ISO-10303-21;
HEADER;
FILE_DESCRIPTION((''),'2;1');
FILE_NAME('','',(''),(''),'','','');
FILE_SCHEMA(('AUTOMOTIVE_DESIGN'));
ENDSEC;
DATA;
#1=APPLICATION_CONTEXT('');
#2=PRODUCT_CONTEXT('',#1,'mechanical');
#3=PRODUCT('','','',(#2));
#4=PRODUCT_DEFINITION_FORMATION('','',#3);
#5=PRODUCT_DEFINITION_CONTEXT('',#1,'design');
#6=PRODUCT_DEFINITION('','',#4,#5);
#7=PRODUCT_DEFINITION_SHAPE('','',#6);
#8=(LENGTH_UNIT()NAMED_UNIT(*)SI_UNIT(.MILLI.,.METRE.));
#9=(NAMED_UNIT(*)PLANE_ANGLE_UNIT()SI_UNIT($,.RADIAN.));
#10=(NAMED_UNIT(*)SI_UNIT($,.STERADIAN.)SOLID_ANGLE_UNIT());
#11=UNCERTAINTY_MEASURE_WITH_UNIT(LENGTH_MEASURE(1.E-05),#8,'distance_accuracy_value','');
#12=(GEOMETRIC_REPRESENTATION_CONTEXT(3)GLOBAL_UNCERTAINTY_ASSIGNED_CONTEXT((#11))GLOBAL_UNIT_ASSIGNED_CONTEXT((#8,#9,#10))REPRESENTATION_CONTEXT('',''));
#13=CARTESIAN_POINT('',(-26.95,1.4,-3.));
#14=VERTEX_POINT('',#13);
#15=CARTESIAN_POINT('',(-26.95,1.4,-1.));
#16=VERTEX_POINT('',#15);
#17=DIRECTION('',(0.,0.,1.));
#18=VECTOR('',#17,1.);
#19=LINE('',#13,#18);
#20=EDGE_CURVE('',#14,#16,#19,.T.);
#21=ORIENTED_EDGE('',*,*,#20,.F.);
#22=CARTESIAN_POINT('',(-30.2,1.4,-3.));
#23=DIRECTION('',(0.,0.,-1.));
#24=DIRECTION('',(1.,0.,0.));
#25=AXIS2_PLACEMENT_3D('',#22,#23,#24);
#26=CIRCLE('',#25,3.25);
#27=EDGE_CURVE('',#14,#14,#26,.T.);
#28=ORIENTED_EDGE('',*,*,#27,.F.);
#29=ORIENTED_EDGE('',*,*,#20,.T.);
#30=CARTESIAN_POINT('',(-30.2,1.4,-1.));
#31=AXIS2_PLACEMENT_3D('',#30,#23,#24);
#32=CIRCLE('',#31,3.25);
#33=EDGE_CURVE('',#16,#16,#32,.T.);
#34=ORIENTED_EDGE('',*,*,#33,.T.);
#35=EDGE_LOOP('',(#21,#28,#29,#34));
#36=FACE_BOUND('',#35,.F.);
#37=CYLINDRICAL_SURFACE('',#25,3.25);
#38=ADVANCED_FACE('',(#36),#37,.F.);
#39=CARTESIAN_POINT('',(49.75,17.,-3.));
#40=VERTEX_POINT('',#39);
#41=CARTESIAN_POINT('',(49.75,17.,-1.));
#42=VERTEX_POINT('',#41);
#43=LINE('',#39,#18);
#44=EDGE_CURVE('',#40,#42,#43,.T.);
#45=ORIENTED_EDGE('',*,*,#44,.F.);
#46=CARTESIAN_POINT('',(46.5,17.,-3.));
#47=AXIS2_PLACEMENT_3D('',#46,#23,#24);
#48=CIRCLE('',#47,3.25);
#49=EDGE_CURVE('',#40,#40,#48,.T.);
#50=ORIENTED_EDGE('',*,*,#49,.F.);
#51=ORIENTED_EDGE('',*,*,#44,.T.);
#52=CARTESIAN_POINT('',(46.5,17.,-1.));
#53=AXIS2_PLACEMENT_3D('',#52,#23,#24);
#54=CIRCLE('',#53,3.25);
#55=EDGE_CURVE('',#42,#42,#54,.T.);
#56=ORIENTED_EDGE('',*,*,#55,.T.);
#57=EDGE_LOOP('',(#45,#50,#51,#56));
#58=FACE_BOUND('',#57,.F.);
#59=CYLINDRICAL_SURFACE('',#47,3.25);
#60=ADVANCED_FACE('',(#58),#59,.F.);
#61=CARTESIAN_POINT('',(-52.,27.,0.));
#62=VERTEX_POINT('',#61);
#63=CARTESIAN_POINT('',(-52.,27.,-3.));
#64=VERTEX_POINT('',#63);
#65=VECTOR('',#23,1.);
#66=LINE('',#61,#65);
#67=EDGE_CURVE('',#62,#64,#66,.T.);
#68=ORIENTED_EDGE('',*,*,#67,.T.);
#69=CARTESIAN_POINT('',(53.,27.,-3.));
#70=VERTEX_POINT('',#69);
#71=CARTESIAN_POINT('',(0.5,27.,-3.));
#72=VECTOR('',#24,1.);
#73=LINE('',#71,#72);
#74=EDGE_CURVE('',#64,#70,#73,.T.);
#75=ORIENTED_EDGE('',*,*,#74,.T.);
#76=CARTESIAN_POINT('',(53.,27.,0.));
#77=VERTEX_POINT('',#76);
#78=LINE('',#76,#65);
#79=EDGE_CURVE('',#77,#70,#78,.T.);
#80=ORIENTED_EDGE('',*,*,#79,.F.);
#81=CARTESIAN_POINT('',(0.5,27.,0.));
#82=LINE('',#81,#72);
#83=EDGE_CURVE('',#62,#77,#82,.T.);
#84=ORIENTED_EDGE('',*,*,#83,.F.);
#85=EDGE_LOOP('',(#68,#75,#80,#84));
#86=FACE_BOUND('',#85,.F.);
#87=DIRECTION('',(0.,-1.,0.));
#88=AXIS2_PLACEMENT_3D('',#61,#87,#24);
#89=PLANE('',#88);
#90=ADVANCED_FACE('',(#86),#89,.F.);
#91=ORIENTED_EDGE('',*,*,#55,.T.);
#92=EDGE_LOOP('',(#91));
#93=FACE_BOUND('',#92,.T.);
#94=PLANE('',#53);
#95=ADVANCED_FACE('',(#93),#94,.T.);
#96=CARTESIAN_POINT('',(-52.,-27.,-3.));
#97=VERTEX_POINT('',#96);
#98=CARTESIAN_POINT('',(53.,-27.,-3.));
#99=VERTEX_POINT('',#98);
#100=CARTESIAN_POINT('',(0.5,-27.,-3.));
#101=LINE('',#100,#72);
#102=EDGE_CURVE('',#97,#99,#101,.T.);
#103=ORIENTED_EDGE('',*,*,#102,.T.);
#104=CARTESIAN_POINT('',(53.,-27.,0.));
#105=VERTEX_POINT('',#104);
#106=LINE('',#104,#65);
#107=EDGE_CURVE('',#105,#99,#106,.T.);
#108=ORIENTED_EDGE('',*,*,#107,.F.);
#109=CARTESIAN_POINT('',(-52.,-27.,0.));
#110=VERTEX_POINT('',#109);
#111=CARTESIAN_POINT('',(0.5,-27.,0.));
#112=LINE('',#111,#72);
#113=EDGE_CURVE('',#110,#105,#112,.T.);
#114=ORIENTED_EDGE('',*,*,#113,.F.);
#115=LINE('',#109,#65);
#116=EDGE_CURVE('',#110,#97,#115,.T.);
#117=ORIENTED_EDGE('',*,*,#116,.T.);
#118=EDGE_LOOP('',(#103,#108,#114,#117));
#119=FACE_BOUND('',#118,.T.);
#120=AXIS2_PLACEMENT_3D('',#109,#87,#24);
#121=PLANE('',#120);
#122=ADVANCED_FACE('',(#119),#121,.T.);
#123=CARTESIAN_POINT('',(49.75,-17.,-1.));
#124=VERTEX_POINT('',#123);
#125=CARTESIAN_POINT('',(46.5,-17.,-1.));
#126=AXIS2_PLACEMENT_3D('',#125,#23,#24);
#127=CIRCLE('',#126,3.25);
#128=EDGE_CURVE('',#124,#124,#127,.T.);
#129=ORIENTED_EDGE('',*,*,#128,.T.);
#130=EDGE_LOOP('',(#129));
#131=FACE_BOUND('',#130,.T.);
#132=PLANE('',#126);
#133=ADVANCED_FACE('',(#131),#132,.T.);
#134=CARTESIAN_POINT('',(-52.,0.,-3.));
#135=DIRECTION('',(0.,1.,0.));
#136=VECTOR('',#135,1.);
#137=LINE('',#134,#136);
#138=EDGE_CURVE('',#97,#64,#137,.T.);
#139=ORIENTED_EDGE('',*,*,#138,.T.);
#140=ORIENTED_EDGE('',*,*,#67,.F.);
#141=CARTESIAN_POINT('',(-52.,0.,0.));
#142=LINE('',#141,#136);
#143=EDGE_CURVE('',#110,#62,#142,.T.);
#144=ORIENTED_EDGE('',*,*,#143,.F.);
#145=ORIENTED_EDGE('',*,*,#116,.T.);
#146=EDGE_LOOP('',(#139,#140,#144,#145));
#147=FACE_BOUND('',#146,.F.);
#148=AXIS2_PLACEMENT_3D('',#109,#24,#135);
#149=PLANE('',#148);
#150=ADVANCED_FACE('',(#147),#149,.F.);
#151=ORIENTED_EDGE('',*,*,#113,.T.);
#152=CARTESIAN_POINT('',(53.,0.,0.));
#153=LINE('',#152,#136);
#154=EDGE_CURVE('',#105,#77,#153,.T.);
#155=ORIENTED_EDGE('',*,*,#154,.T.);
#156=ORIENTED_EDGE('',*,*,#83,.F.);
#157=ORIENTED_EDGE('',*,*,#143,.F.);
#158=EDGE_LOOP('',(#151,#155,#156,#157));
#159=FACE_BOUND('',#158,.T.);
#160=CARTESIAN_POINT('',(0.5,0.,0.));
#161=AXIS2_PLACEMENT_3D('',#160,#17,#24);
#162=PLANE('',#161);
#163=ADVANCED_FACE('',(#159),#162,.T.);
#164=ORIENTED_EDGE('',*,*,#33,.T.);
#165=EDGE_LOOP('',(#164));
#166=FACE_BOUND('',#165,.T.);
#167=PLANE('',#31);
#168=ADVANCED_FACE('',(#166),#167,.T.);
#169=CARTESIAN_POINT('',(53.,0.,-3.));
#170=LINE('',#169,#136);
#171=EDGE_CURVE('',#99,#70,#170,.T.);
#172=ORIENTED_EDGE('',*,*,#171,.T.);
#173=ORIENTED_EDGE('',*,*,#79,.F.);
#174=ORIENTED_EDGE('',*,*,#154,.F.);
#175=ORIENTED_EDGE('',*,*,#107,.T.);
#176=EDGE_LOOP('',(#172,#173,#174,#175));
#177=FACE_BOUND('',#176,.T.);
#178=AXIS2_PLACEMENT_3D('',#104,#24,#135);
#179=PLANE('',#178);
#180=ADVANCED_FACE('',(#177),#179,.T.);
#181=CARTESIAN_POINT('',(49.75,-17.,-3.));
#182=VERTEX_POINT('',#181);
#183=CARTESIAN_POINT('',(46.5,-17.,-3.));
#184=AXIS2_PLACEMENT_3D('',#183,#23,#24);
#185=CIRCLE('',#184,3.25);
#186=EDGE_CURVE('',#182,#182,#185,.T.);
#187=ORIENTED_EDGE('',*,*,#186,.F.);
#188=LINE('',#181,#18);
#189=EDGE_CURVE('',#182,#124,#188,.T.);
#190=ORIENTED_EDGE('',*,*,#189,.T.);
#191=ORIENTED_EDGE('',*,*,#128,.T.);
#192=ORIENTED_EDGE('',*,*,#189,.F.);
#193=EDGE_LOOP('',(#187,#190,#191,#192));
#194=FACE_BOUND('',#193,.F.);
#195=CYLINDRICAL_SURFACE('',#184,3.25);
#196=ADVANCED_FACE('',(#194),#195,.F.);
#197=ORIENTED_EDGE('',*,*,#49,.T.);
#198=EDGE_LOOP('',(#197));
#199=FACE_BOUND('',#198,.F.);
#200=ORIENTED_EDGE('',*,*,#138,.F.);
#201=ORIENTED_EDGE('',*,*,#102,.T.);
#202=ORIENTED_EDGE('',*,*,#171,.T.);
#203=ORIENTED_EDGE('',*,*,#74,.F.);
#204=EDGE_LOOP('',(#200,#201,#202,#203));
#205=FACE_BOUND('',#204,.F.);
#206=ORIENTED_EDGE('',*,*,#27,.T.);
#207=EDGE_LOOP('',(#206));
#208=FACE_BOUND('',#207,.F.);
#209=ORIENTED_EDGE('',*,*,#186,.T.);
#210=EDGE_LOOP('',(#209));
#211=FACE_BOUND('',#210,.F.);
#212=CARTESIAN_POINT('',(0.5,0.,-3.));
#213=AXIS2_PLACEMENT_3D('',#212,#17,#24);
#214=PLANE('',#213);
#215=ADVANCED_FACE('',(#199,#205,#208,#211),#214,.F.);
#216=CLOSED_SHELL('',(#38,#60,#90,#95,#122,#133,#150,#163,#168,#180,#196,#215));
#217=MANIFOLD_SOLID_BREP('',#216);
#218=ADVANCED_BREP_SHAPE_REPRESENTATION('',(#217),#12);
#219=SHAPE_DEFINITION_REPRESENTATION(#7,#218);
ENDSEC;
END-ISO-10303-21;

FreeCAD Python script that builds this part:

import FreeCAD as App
import Part
import Sketcher

V = App.Vector

doc = App.newDocument("Part")
params = doc.addObject("Spreadsheet::Sheet", "Params")
for row, (alias, value) in enumerate([
    ("sketch1_width", "105 mm"),
    ("sketch1_height", "54 mm"),
    ("pad1_length", "3 mm"),
    ("sketch2_diameter", "6.5 mm"),
    ("pocket1_length", "2 mm"),
    ("sketch3_diameter", "6.5 mm"),
    ("pocket2_length", "2 mm"),
    ("sketch4_diameter", "6.5 mm"),
    ("pocket3_length", "2 mm"),
], start=1):
    params.set(f"A{row}", alias)
    params.set(f"B{row}", "=" + value)
    params.setAlias(f"B{row}", alias)

body = doc.addObject("PartDesign::Body", "Body")

# Sketch on XY plane
sketch1 = body.newObject("Sketcher::SketchObject", "Sketch")
sketch1.AttachmentSupport = (doc.getObject("XY_Plane"), [""])
sketch1.MapMode = "FlatFace"
sketch1.addGeometry([
    Part.LineSegment(V(-52, 27, 0), V(-52, -27, 0)),
    Part.LineSegment(V(-52, -27, 0), V(53, -27, 0)),
    Part.LineSegment(V(53, -27, 0), V(53, 27, 0)),
    Part.LineSegment(V(53, 27, 0), V(-52, 27, 0)),
], False)
sketch1.addConstraint([
    Sketcher.Constraint("Coincident", 0, 2, 1, 1),
    Sketcher.Constraint("Coincident", 1, 2, 2, 1),
    Sketcher.Constraint("Coincident", 2, 2, 3, 1),
    Sketcher.Constraint("Coincident", 3, 2, 0, 1),
    Sketcher.Constraint("Vertical", 0),
    Sketcher.Constraint("Horizontal", 1),
    Sketcher.Constraint("Vertical", 2),
    Sketcher.Constraint("Horizontal", 3),
    Sketcher.Constraint("DistanceX", 1, 1, 1, 2, 105.0),
    Sketcher.Constraint("DistanceY", 0, 2, 0, 1, 54.0),
    Sketcher.Constraint("DistanceX", 0, 2, -1, 1, 52.0),
    Sketcher.Constraint("DistanceY", 0, 2, -1, 1, 27.0),
])
sketch1.setExpression("Constraints[8]", "Params.sketch1_width")
sketch1.setExpression("Constraints[9]", "Params.sketch1_height")
pad1 = body.newObject("PartDesign::Pad", "Pad")
pad1.Profile = sketch1
pad1.setExpression("Length", "Params.pad1_length")
pad1.Reversed = True

# Sketch on XY plane
sketch2 = body.newObject("Sketcher::SketchObject", "Sketch001")
sketch2.AttachmentSupport = (doc.getObject("XY_Plane"), [""])
sketch2.MapMode = "FlatFace"
sketch2.AttachmentOffset = App.Placement(V(0, 0, -3), App.Rotation())
sketch2.addGeometry(Part.Circle(V(46.5, -17, 0), V(0, 0, 1), 3.2), False)
sketch2.addConstraint([
    Sketcher.Constraint("Diameter", 0, 6.5),
    Sketcher.Constraint("DistanceY", 0, 3, -1, 1, 17.0),
    Sketcher.Constraint("DistanceX", -1, 1, 0, 3, 46.5),
])
sketch2.setExpression("Constraints[0]", "Params.sketch2_diameter")
pocket1 = body.newObject("PartDesign::Pocket", "Pocket")
pocket1.Profile = sketch2
pocket1.setExpression("Length", "Params.pocket1_length")
pocket1.Reversed = True

# Sketch on XY plane
sketch3 = body.newObject("Sketcher::SketchObject", "Sketch002")
sketch3.AttachmentSupport = (doc.getObject("XY_Plane"), [""])
sketch3.MapMode = "FlatFace"
sketch3.AttachmentOffset = App.Placement(V(0, 0, -3), App.Rotation())
sketch3.addGeometry(Part.Circle(V(46.5, 17, 0), V(0, 0, 1), 3.2), False)
sketch3.addConstraint([
    Sketcher.Constraint("Diameter", 0, 6.5),
    Sketcher.Constraint("DistanceY", -1, 1, 0, 3, 17.0),
    Sketcher.Constraint("DistanceX", -1, 1, 0, 3, 46.5),
])
sketch3.setExpression("Constraints[0]", "Params.sketch3_diameter")
pocket2 = body.newObject("PartDesign::Pocket", "Pocket001")
pocket2.Profile = sketch3
pocket2.setExpression("Length", "Params.pocket2_length")
pocket2.Reversed = True

# Sketch on XY plane
sketch4 = body.newObject("Sketcher::SketchObject", "Sketch003")
sketch4.AttachmentSupport = (doc.getObject("XY_Plane"), [""])
sketch4.MapMode = "FlatFace"
sketch4.AttachmentOffset = App.Placement(V(0, 0, -3), App.Rotation())
sketch4.addGeometry(Part.Circle(V(-30.2, 1.4, 0), V(0, 0, 1), 3.2), False)
sketch4.addConstraint([
    Sketcher.Constraint("Diameter", 0, 6.5),
    Sketcher.Constraint("DistanceX", 0, 3, -1, 1, 30.2),
    Sketcher.Constraint("DistanceY", -1, 1, 0, 3, 1.4),
])
sketch4.setExpression("Constraints[0]", "Params.sketch4_diameter")
pocket3 = body.newObject("PartDesign::Pocket", "Pocket002")
pocket3.Profile = sketch4
pocket3.setExpression("Length", "Params.pocket3_length")
pocket3.Reversed = True

doc.recompute()
